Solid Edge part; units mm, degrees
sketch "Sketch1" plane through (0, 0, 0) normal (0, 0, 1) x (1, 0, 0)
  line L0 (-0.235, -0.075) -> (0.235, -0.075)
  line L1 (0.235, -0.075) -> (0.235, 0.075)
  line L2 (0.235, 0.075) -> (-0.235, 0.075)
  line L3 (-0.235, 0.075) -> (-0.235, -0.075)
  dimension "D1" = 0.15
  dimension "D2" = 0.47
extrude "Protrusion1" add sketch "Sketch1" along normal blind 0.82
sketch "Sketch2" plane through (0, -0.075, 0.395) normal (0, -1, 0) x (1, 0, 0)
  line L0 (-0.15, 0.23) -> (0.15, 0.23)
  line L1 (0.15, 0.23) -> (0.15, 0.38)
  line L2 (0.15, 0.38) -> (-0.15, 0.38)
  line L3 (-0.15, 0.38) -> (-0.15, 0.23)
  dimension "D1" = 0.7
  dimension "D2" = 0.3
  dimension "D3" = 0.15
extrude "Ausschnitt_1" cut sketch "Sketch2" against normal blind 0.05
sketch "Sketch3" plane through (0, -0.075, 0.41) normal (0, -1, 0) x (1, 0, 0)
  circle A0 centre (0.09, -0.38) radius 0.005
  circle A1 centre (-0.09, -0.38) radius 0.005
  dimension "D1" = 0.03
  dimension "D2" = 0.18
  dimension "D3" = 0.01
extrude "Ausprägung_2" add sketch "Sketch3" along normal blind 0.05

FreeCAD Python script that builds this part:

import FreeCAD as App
import Part
import Sketcher

V = App.Vector
Q = App.Units.Quantity

doc = App.newDocument("Part")
body = doc.addObject("PartDesign::Body", "Body")

# Sketch on XY plane
sketch1 = doc.addObject("Sketcher::SketchObject", "Sketch")
body.addObject(sketch1)
sketch1.AttachmentSupport = (doc.XY_Plane, [""])
sketch1.MapMode = "FlatFace"
sketch1.addGeometry([
    Part.LineSegment(V(-0.23, 0.07, 0), V(-0.23, -0.07, 0)),
    Part.LineSegment(V(-0.23, -0.07, 0), V(0.23, -0.07, 0)),
    Part.LineSegment(V(0.23, -0.07, 0), V(0.23, 0.07, 0)),
    Part.LineSegment(V(0.23, 0.07, 0), V(-0.23, 0.07, 0)),
], False)
sketch1.addConstraint([
    Sketcher.Constraint("Coincident", 0, 2, 1, 1),
    Sketcher.Constraint("Coincident", 1, 2, 2, 1),
    Sketcher.Constraint("Coincident", 2, 2, 3, 1),
    Sketcher.Constraint("Coincident", 3, 2, 0, 1),
    Sketcher.Constraint("Vertical", 0),
    Sketcher.Constraint("Horizontal", 1),
    Sketcher.Constraint("Vertical", 2),
    Sketcher.Constraint("Horizontal", 3),
    Sketcher.Constraint("Symmetric", 0, 2, 2, 2, -1, 1),
    Sketcher.Constraint("DistanceX", 0, 2, -1, 1, Q("0.235 mm")),
    Sketcher.Constraint("DistanceY", 0, 2, 0, 1, Q("0.15 mm")),
])
pad1 = doc.addObject("PartDesign::Pad", "Pad")
body.addObject(pad1)
pad1.Profile = sketch1
pad1.Length = 0.82

# Sketch on XZ plane
sketch2 = doc.addObject("Sketcher::SketchObject", "Sketch001")
body.addObject(sketch2)
sketch2.AttachmentSupport = (doc.XZ_Plane, [""])
sketch2.MapMode = "FlatFace"
sketch2.AttachmentOffset = App.Placement(V(0, 0, 0.075), App.Rotation())
sketch2.addGeometry([
    Part.LineSegment(V(-0.15, 0.78, 0), V(-0.15, 0.62, 0)),
    Part.LineSegment(V(-0.15, 0.62, 0), V(0.15, 0.62, 0)),
    Part.LineSegment(V(0.15, 0.62, 0), V(0.15, 0.78, 0)),
    Part.LineSegment(V(0.15, 0.78, 0), V(-0.15, 0.78, 0)),
], False)
sketch2.addConstraint([
    Sketcher.Constraint("Coincident", 0, 2, 1, 1),
    Sketcher.Constraint("Coincident", 1, 2, 2, 1),
    Sketcher.Constraint("Coincident", 2, 2, 3, 1),
    Sketcher.Constraint("Coincident", 3, 2, 0, 1),
    Sketcher.Constraint("Vertical", 0),
    Sketcher.Constraint("Horizontal", 1),
    Sketcher.Constraint("Vertical", 2),
    Sketcher.Constraint("Horizontal", 3),
    Sketcher.Constraint("DistanceY", 0, 2, 0, 1, Q("0.15 mm")),
    Sketcher.Constraint("DistanceX", 0, 2, -1, 1, Q("0.15 mm")),
    Sketcher.Constraint("DistanceX", -1, 1, 1, 2, Q("0.15 mm")),
    Sketcher.Constraint("DistanceY", -1, 1, 0, 2, Q("0.625 mm")),
])
pocket1 = doc.addObject("PartDesign::Pocket", "Pocket")
body.addObject(pocket1)
pocket1.Profile = sketch2
pocket1.Length = 0.05

# Sketch on XZ plane
sketch3 = doc.addObject("Sketcher::SketchObject", "Sketch002")
body.addObject(sketch3)
sketch3.AttachmentSupport = (doc.XZ_Plane, [""])
sketch3.MapMode = "FlatFace"
sketch3.AttachmentOffset = App.Placement(V(0, 0, 0.075), App.Rotation())
sketch3.addGeometry([
    Part.Circle(V(0.09, 0.03, 0), V(0, 0, 1), 0.005),
    Part.Circle(V(-0.09, 0.03, 0), V(0, 0, 1), 0.005),
], False)
sketch3.addConstraint([
    Sketcher.Constraint("Equal", 0, 1),
    Sketcher.Constraint("Symmetric", 0, 3, 1, 3, -2),
    Sketcher.Constraint("Diameter", 0, Q("0.01 mm")),
    Sketcher.Constraint("DistanceX", -1, 1, 0, 3, Q("0.09 mm")),
    Sketcher.Constraint("DistanceY", -1, 1, 0, 3, Q("0.03 mm")),
])
pad2 = doc.addObject("PartDesign::Pad", "Pad001")
body.addObject(pad2)
pad2.Profile = sketch3
pad2.Length = 0.05

doc.recompute()
